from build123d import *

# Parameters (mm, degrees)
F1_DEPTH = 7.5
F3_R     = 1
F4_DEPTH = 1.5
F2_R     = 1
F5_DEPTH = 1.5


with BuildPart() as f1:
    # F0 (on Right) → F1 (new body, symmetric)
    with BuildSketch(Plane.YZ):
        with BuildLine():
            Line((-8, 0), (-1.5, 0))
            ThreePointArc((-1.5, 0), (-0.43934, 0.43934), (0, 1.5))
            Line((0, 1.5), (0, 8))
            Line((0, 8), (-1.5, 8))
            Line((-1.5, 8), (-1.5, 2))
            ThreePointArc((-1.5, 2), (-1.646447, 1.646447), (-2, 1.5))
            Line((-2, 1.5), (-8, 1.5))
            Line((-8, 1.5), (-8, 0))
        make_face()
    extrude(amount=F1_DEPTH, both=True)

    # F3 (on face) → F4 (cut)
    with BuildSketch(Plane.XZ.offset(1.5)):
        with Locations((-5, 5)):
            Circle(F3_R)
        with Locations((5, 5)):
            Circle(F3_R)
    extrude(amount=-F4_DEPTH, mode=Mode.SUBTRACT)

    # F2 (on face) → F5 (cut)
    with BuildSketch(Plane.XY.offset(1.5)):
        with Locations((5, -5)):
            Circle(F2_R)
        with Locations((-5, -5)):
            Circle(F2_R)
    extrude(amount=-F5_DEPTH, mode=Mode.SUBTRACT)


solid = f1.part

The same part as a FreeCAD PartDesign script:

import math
import FreeCAD as App
import Part
import Sketcher

doc = App.newDocument("Part")
body = doc.addObject("PartDesign::Body", "Body")

# Sketch on YZ plane
sketch1 = doc.addObject("Sketcher::SketchObject", "Sketch")
body.addObject(sketch1)
sketch1.AttachmentSupport = (doc.YZ_Plane, [""])
sketch1.MapMode = "FlatFace"
sketch1.addGeometry([
    Part.LineSegment(App.Vector(-8, 0, 0), App.Vector(-1.5, 0, 0)),  # 0
    Part.ArcOfCircle(Part.Circle(App.Vector(-1.5, 1.5, 0), App.Vector(0, 0, 1), 1.5), math.radians(-90), math.radians(0)),  # 1
    Part.LineSegment(App.Vector(0, 1.5, 0), App.Vector(0, 8, 0)),  # 2
    Part.LineSegment(App.Vector(0, 8, 0), App.Vector(-1.5, 8, 0)),  # 3
    Part.LineSegment(App.Vector(-1.5, 8, 0), App.Vector(-1.5, 2, 0)),  # 4
    Part.ArcOfCircle(Part.Circle(App.Vector(-2, 2, 0), App.Vector(0, 0, 1), 0.5), math.radians(-90), math.radians(0)),  # 5
    Part.LineSegment(App.Vector(-2, 1.5, 0), App.Vector(-8, 1.5, 0)),  # 6
    Part.LineSegment(App.Vector(-8, 1.5, 0), App.Vector(-8, 0, 0)),  # 7
], False)
sketch1.addConstraint([
    Sketcher.Constraint("Tangent", 0, 2, 1, 1),
    Sketcher.Constraint("Tangent", 1, 2, 2, 1),
    Sketcher.Constraint("Coincident", 2, 2, 3, 1),
    Sketcher.Constraint("Coincident", 3, 2, 4, 1),
    Sketcher.Constraint("Coincident", 4, 2, 5, 2),
    Sketcher.Constraint("Coincident", 5, 1, 6, 1),
    Sketcher.Constraint("Coincident", 6, 2, 7, 1),
    Sketcher.Constraint("Coincident", 7, 2, 0, 1),
    Sketcher.Constraint("Horizontal", 0),
    Sketcher.Constraint("Vertical", 2),
    Sketcher.Constraint("Horizontal", 3),
    Sketcher.Constraint("Vertical", 4),
    Sketcher.Constraint("Horizontal", 6),
    Sketcher.Constraint("Vertical", 7),
    Sketcher.Constraint("PointOnObject", 0, 2, -1),
    Sketcher.Constraint("PointOnObject", 1, 2, -2),
    Sketcher.Constraint("Horizontal", 5, 3, 4, 2),
    Sketcher.Constraint("Horizontal", 1, 2, 5, 1),
    Sketcher.Constraint("Vertical", 0, 2, 3, 2),
    Sketcher.Constraint("Equal", 0, 2),
    Sketcher.Constraint("Equal", 6, 4),
    Sketcher.Constraint("Radius", 1, 1.500001),
    Sketcher.Constraint("Radius", 5, 0.500001),
    Sketcher.Constraint("DistanceX", 6, 2, 6, 1, 6.0),
])
pad1 = doc.addObject("PartDesign::Pad", "Pad")
body.addObject(pad1)
pad1.Profile = sketch1
pad1.Length = 15
pad1.Midplane = True

# Sketch on XZ plane
sketch2 = doc.addObject("Sketcher::SketchObject", "Sketch001")
body.addObject(sketch2)
sketch2.AttachmentSupport = (doc.XZ_Plane, [""])
sketch2.MapMode = "FlatFace"
sketch2.AttachmentOffset = App.Placement(App.Vector(0, 0, 1.5), App.Rotation())
sketch2.addGeometry([
    Part.Circle(App.Vector(-5, 5, 0), App.Vector(0, 0, 1), 1),
    Part.Circle(App.Vector(5, 5, 0), App.Vector(0, 0, 1), 1),
], False)
sketch2.addConstraint([
    Sketcher.Constraint("Equal", 0, 1),
    Sketcher.Constraint("Symmetric", 0, 3, 1, 3, -2),
    Sketcher.Constraint("Diameter", 0, 2.0),
    Sketcher.Constraint("DistanceX", 0, 3, -1, 1, 5.0),
    Sketcher.Constraint("DistanceY", -1, 1, 0, 3, 5.0),
])
pocket1 = doc.addObject("PartDesign::Pocket", "Pocket")
body.addObject(pocket1)
pocket1.Profile = sketch2
pocket1.Length = 1.5

# Sketch on XY plane
sketch3 = doc.addObject("Sketcher::SketchObject", "Sketch002")
body.addObject(sketch3)
sketch3.AttachmentSupport = (doc.XY_Plane, [""])
sketch3.MapMode = "FlatFace"
sketch3.AttachmentOffset = App.Placement(App.Vector(0, 0, 1.5), App.Rotation())
sketch3.addGeometry([
    Part.Circle(App.Vector(5, -5, 0), App.Vector(0, 0, 1), 1),
    Part.Circle(App.Vector(-5, -5, 0), App.Vector(0, 0, 1), 1),
], False)
sketch3.addConstraint([
    Sketcher.Constraint("Equal", 0, 1),
    Sketcher.Constraint("Symmetric", 0, 3, 1, 3, -2),
    Sketcher.Constraint("Diameter", 0, 2.0),
    Sketcher.Constraint("DistanceX", -1, 1, 0, 3, 5.0),
    Sketcher.Constraint("DistanceY", 0, 3, -1, 1, 5.0),
])
pocket2 = doc.addObject("PartDesign::Pocket", "Pocket001")
body.addObject(pocket2)
pocket2.Profile = sketch3
pocket2.Length = 1.5

doc.recompute()
